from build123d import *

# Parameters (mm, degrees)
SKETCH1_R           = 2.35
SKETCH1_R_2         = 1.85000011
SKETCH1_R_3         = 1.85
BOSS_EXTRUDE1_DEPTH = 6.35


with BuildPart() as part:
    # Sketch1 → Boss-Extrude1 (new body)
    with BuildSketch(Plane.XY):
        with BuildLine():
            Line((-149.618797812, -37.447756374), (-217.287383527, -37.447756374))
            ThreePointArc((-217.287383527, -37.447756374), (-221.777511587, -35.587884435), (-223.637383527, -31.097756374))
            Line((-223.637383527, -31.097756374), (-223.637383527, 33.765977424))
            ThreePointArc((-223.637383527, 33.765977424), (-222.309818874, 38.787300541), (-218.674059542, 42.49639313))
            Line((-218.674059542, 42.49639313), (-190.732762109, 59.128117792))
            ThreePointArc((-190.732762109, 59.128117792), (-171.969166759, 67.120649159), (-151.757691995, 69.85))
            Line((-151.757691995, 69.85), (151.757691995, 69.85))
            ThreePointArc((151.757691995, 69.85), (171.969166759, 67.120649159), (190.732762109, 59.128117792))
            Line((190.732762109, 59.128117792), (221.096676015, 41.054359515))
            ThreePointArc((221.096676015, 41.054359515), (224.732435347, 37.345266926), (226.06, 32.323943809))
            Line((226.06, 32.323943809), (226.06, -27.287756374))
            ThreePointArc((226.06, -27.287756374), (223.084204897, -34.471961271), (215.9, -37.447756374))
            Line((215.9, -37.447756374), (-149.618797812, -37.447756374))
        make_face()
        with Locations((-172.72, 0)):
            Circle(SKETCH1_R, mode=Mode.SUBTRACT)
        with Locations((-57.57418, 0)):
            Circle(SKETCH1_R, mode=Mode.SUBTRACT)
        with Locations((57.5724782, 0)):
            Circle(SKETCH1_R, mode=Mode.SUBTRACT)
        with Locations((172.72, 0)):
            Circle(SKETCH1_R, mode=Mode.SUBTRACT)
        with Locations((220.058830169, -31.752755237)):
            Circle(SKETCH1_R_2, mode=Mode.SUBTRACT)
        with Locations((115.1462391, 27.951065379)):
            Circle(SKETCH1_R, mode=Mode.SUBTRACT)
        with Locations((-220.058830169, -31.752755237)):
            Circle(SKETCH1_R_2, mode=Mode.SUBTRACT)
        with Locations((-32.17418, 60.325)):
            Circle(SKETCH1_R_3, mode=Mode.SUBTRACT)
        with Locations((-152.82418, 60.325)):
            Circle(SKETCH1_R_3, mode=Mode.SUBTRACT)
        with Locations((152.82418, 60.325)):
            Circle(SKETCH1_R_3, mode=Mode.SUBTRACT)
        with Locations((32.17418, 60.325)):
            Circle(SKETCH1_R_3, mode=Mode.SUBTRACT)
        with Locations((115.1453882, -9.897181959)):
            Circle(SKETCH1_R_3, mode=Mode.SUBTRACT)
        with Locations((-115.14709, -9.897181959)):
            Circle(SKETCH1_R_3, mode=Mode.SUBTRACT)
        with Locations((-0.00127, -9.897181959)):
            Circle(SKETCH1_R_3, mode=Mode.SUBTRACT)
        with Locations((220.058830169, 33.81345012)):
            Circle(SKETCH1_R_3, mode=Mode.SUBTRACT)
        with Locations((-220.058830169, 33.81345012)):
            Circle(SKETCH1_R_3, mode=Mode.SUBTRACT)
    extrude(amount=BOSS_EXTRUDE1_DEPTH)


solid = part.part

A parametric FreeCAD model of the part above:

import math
import FreeCAD as App
import Part
import Sketcher
Q = App.Units.Quantity

doc = App.newDocument("Part")
params = doc.addObject("Spreadsheet::Sheet", "Params")
for row, (alias, value) in enumerate([
    ("sketch1_radius", "3 in"),
    ("sketch1_radius2", "0.4 in"),
    ("sketch1_radius3", "0.25 in"),
    ("pad1_length", "0.25 in"),
], start=1):
    params.set(f"A{row}", alias)
    params.set(f"B{row}", "=" + value)
    params.setAlias(f"B{row}", alias)

body = doc.addObject("PartDesign::Body", "Body")

# Sketch on XY plane
sketch1 = body.newObject("Sketcher::SketchObject", "Sketch")
sketch1.AttachmentSupport = (doc.getObject("XY_Plane"), [""])
sketch1.MapMode = "FlatFace"
sketch1.addGeometry(Part.ArcOfCircle(Part.Circle(App.Vector(-217.3, -31.1, 0), App.Vector(0, 0, 1), 6.3), math.radians(180), math.radians(270)), False)
sketch1.addGeometry(Part.LineSegment(App.Vector(-217.3, -37.4, 0), App.Vector(215.9, -37.4, 0)), False)
sketch1.addGeometry(Part.ArcOfCircle(Part.Circle(App.Vector(215.9, -27.3, 0), App.Vector(0, 0, 1), 10.2), math.radians(-90), math.radians(0)), False)
sketch1.addGeometry(Part.LineSegment(App.Vector(226.1, -27.3, 0), App.Vector(226.1, 32.3, 0)), False)
sketch1.addGeometry(Part.ArcOfCircle(Part.Circle(App.Vector(215.9, 32.3, 0), App.Vector(0, 0, 1), 10.2), math.radians(0), math.radians(59)), False)
sketch1.addGeometry(Part.LineSegment(App.Vector(221.1, 41.1, 0), App.Vector(190.7, 59.1, 0)), False)
sketch1.addGeometry(Part.ArcOfCircle(Part.Circle(App.Vector(151.8, -6.4, 0), App.Vector(0, 0, 1), 76.2), math.radians(59), math.radians(90)), False)
sketch1.addGeometry(Part.LineSegment(App.Vector(151.8, 69.8, 0), App.Vector(-151.8, 69.8, 0)), False)
sketch1.addGeometry(Part.ArcOfCircle(Part.Circle(App.Vector(-151.8, -6.4, 0), App.Vector(0, 0, 1), 76.2), math.radians(90), math.radians(121)), False)
sketch1.addGeometry(Part.LineSegment(App.Vector(-190.7, 59.1, 0), App.Vector(-218.7, 42.5, 0)), False)
sketch1.addGeometry(Part.ArcOfCircle(Part.Circle(App.Vector(-213.5, 33.8, 0), App.Vector(0, 0, 1), 10.2), math.radians(121), math.radians(180)), False)
sketch1.addGeometry(Part.LineSegment(App.Vector(-223.6, 33.8, 0), App.Vector(-223.6, -31.1, 0)), False)
sketch1.addGeometry(Part.Circle(App.Vector(220.1, -31.8, 0), App.Vector(0, 0, 1), 1.9), False)
sketch1.addGeometry(Part.Circle(App.Vector(115.1, -9.9, 0), App.Vector(0, 0, 1), 1.9), False)
sketch1.addGeometry(Part.Circle(App.Vector(172.7, 0, 0), App.Vector(0, 0, 1), 2.4), False)
sketch1.addGeometry(Part.Circle(App.Vector(57.6, 0, 0), App.Vector(0, 0, 1), 2.4), False)
sketch1.addGeometry(Part.Circle(App.Vector(0, -9.9, 0), App.Vector(0, 0, 1), 1.9), False)
sketch1.addGeometry(Part.Circle(App.Vector(-220.1, -31.8, 0), App.Vector(0, 0, 1), 1.9), False)
sketch1.addGeometry(Part.Circle(App.Vector(-115.1, -9.9, 0), App.Vector(0, 0, 1), 1.9), False)
sketch1.addGeometry(Part.Circle(App.Vector(-57.6, 0, 0), App.Vector(0, 0, 1), 2.4), False)
sketch1.addGeometry(Part.Circle(App.Vector(-172.7, 0, 0), App.Vector(0, 0, 1), 2.4), False)
sketch1.addGeometry(Part.Circle(App.Vector(220.1, 33.8, 0), App.Vector(0, 0, 1), 1.9), False)
sketch1.addGeometry(Part.Circle(App.Vector(115.1, 28, 0), App.Vector(0, 0, 1), 2.4), False)
sketch1.addGeometry(Part.Circle(App.Vector(152.8, 60.3, 0), App.Vector(0, 0, 1), 1.9), False)
sketch1.addGeometry(Part.Circle(App.Vector(32.2, 60.3, 0), App.Vector(0, 0, 1), 1.9), False)
sketch1.addGeometry(Part.Circle(App.Vector(-220.1, 33.8, 0), App.Vector(0, 0, 1), 1.9), False)
sketch1.addGeometry(Part.Circle(App.Vector(-32.2, 60.3, 0), App.Vector(0, 0, 1), 1.9), False)
sketch1.addGeometry(Part.Circle(App.Vector(-152.8, 60.3, 0), App.Vector(0, 0, 1), 1.9), False)
sketch1.addConstraint(Sketcher.Constraint("Tangent", 0, 2, 1, 1))
sketch1.addConstraint(Sketcher.Constraint("Tangent", 1, 2, 2, 1))
sketch1.addConstraint(Sketcher.Constraint("Tangent", 2, 2, 3, 1))
sketch1.addConstraint(Sketcher.Constraint("Tangent", 3, 2, 4, 1))
sketch1.addConstraint(Sketcher.Constraint("Tangent", 4, 2, 5, 1))
sketch1.addConstraint(Sketcher.Constraint("Tangent", 5, 2, 6, 1))
sketch1.addConstraint(Sketcher.Constraint("Tangent", 6, 2, 7, 1))
sketch1.addConstraint(Sketcher.Constraint("Tangent", 7, 2, 8, 1))
sketch1.addConstraint(Sketcher.Constraint("Tangent", 8, 2, 9, 1))
sketch1.addConstraint(Sketcher.Constraint("Tangent", 9, 2, 10, 1))
sketch1.addConstraint(Sketcher.Constraint("Tangent", 10, 2, 11, 1))
sketch1.addConstraint(Sketcher.Constraint("Tangent", 11, 2, 0, 1))
sketch1.addConstraint(Sketcher.Constraint("Horizontal", 1))
sketch1.addConstraint(Sketcher.Constraint("Vertical", 3))
sketch1.addConstraint(Sketcher.Constraint("Horizontal", 7))
sketch1.addConstraint(Sketcher.Constraint("Vertical", 11))
sketch1.addConstraint(Sketcher.Constraint("Equal", 2, 4))
sketch1.addConstraint(Sketcher.Constraint("Equal", 6, 8))
sketch1.addConstraint(Sketcher.Constraint("Equal", 4, 10))
sketch1.addConstraint(Sketcher.Constraint("Equal", 12, 13))
sketch1.addConstraint(Sketcher.Constraint("Equal", 14, 15))
sketch1.addConstraint(Sketcher.Constraint("Equal", 13, 16))
sketch1.addConstraint(Sketcher.Constraint("Equal", 16, 17))
sketch1.addConstraint(Sketcher.Constraint("Equal", 17, 18))
sketch1.addConstraint(Sketcher.Constraint("Equal", 15, 19))
sketch1.addConstraint(Sketcher.Constraint("Equal", 19, 20))
sketch1.addConstraint(Sketcher.Constraint("Equal", 18, 21))
sketch1.addConstraint(Sketcher.Constraint("Equal", 20, 22))
sketch1.addConstraint(Sketcher.Constraint("Equal", 21, 23))
sketch1.addConstraint(Sketcher.Constraint("Equal", 23, 24))
sketch1.addConstraint(Sketcher.Constraint("Equal", 24, 25))
sketch1.addConstraint(Sketcher.Constraint("Equal", 25, 26))
sketch1.addConstraint(Sketcher.Constraint("Equal", 26, 27))
sketch1.addConstraint(Sketcher.Constraint("Symmetric", 14, 3, 20, 3, -1, 1))
sketch1.addConstraint(Sketcher.Constraint("Symmetric", 12, 3, 17, 3, -2))
sketch1.addConstraint(Sketcher.Constraint("Symmetric", 21, 3, 25, 3, -2))
sketch1.addConstraint(Sketcher.Constraint("Symmetric", 24, 3, 26, 3, -2))
sketch1.addConstraint(Sketcher.Constraint("Symmetric", 23, 3, 27, 3, -2))
sketch1.addConstraint(Sketcher.Constraint("Symmetric", 5, 2, 8, 2, -2))
sketch1.addConstraint(Sketcher.Constraint("PointOnObject", 14, 3, -1))
sketch1.addConstraint(Sketcher.Constraint("PointOnObject", 15, 3, -1))
sketch1.addConstraint(Sketcher.Constraint("PointOnObject", 19, 3, -1))
sketch1.addConstraint(Sketcher.Constraint("Horizontal", 13, 3, 16, 3))
sketch1.addConstraint(Sketcher.Constraint("Horizontal", 16, 3, 18, 3))
sketch1.addConstraint(Sketcher.Constraint("Horizontal", 23, 3, 24, 3))
sketch1.addConstraint(Sketcher.Constraint("Vertical", 12, 3, 21, 3))
sketch1.addConstraint(Sketcher.Constraint("Radius", 6, Q("3 in")))
sketch1.addConstraint(Sketcher.Constraint("Radius", 2, Q("0.4 in")))
sketch1.addConstraint(Sketcher.Constraint("Radius", 0, Q("0.25 in")))
sketch1.addConstraint(Sketcher.Constraint("DistanceX", 19, 3, 26, 3, Q("1 in")))
sketch1.addConstraint(Sketcher.Constraint("DistanceX", -1, 1, 2, 3, Q("8.5 in")))
sketch1.addConstraint(Sketcher.Constraint("DistanceX", -1, 1, 14, 3, Q("6.8 in")))
sketch1.addConstraint(Sketcher.Constraint("Diameter", 12, Q("3.7 mm")))
sketch1.addConstraint(Sketcher.Constraint("Diameter", 14, Q("4.7 mm")))
sketch1.addConstraint(Sketcher.Constraint("DistanceY", 6, 3, -1, 1, Q("0.25 in")))
sketch1.addConstraint(Sketcher.Constraint("DistanceY", -1, 1, 23, 3, Q("2.375 in")))
sketch1.addConstraint(Sketcher.Constraint("DistanceY", 3, 1, 3, 2, Q("59.6117 mm")))
sketch1.addConstraint(Sketcher.Constraint("DistanceX", 19, 3, -1, 1, Q("2.2667 in")))
sketch1.addConstraint(Sketcher.Constraint("DistanceX", -1, 1, 23, 3, Q("6.0167 in")))
sketch1.addConstraint(Sketcher.Constraint("DistanceX", 18, 3, 16, 3, Q("4.5333 in")))
sketch1.addConstraint(Sketcher.Constraint("DistanceY", 12, 3, 2, 3, Q("4.464999 mm")))
sketch1.addConstraint(Sketcher.Constraint("DistanceX", 8, 3, 18, 3, Q("36.610602 mm")))
sketch1.addConstraint(Sketcher.Constraint("DistanceX", 24, 3, 15, 3, Q("25.398298 mm")))
sketch1.addConstraint(Sketcher.Constraint("Distance", 5, Q("35.335931 mm")))
sketch1.addConstraint(Sketcher.Constraint("DistanceX", 1, 1, 1, 2, Q("433.187384 mm")))
sketch1.addConstraint(Sketcher.Constraint("DistanceX", 7, 2, 7, 1, Q("303.515384 mm")))
sketch1.addConstraint(Sketcher.Constraint("DistanceX", -1, 1, 12, 3, Q("220.05883 mm")))
sketch1.addConstraint(Sketcher.Constraint("DistanceX", -1, 1, 13, 3, Q("115.145388 mm")))
sketch1.addConstraint(Sketcher.Constraint("DistanceY", 13, 3, -1, 1, Q("9.897182 mm")))
sketch1.addConstraint(Sketcher.Constraint("DistanceY", -1, 1, 21, 3, Q("33.81345 mm")))
sketch1.addConstraint(Sketcher.Constraint("DistanceX", -1, 1, 22, 3, Q("115.146239 mm")))
sketch1.addConstraint(Sketcher.Constraint("DistanceY", 22, 3, 4, 3, Q("4.372878 mm")))
sketch1.setExpression("Constraints[46]", "Params.sketch1_radius")
sketch1.setExpression("Constraints[47]", "Params.sketch1_radius2")
sketch1.setExpression("Constraints[48]", "Params.sketch1_radius3")
pad1 = body.newObject("PartDesign::Pad", "Pad")
pad1.Profile = sketch1
pad1.setExpression("Length", "Params.pad1_length")

doc.recompute()
